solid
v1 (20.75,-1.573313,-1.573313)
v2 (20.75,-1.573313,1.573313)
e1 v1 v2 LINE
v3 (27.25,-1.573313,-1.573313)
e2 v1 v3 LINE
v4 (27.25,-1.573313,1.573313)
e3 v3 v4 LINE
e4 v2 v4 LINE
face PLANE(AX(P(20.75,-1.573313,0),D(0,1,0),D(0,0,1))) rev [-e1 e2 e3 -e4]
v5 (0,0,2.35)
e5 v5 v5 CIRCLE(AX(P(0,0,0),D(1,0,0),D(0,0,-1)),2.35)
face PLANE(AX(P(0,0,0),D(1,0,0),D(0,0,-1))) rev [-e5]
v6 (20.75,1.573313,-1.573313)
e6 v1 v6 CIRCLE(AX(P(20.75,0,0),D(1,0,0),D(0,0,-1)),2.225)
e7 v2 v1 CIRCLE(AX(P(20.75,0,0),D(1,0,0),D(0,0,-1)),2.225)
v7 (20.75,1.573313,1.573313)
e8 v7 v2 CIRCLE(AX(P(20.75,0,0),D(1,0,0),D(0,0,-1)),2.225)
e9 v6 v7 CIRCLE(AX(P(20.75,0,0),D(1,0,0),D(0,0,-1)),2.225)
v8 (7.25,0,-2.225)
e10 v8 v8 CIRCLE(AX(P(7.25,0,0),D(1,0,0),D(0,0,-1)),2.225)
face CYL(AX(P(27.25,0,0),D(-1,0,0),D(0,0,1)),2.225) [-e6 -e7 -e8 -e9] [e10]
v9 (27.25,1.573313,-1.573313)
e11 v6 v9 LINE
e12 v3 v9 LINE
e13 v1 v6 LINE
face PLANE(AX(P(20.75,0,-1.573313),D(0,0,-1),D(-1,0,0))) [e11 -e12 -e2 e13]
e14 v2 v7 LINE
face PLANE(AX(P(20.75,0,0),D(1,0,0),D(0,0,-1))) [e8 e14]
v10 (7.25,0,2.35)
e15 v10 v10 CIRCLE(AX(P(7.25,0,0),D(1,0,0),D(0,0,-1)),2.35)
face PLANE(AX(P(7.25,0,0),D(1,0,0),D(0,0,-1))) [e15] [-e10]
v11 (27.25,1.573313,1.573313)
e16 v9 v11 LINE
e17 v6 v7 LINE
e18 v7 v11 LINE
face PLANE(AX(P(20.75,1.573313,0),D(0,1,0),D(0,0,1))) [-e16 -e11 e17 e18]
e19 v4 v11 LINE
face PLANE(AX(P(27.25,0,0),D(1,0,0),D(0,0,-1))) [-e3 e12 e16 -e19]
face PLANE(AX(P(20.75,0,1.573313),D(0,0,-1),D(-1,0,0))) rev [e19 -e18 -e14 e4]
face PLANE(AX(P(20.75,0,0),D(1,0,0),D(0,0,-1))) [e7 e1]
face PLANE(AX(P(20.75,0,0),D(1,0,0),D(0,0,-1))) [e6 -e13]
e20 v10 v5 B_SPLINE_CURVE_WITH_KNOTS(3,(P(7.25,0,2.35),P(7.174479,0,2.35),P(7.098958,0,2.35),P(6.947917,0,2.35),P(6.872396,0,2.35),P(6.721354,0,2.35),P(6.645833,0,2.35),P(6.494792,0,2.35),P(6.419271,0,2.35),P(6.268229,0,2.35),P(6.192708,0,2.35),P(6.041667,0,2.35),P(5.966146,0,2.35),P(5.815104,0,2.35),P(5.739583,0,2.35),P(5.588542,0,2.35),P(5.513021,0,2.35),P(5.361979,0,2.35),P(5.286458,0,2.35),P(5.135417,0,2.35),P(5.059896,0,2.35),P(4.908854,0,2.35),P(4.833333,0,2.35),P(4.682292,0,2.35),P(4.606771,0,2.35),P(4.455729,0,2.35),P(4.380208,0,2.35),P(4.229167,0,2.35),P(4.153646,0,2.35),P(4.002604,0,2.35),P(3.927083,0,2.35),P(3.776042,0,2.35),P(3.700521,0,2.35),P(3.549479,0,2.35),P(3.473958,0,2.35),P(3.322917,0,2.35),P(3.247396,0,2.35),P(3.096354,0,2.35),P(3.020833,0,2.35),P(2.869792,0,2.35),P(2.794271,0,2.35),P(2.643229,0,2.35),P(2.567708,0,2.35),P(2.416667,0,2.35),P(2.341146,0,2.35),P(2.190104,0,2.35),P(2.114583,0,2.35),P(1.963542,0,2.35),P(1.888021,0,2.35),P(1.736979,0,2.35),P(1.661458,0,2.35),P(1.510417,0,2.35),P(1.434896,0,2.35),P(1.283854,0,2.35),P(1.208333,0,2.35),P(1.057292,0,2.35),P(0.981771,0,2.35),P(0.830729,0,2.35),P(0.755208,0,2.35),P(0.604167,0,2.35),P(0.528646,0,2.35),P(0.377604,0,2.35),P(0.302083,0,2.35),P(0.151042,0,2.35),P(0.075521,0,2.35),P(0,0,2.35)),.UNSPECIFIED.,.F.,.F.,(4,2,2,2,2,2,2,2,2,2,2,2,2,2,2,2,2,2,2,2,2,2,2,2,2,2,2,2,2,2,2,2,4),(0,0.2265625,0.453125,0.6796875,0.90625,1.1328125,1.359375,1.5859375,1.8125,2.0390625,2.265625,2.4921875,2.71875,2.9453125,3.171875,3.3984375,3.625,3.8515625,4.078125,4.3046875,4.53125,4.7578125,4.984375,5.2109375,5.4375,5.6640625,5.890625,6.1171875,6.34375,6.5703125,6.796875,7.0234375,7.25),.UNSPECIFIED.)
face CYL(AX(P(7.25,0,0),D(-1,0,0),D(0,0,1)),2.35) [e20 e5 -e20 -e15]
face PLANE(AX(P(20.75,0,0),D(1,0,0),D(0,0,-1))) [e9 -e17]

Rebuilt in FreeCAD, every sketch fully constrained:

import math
import FreeCAD as App
import Part
import Sketcher
Q = App.Units.Quantity

doc = App.newDocument("Part")
params = doc.addObject("Spreadsheet::Sheet", "Params")
for row, (alias, value) in enumerate([
    ("sketch1_diameter", "4.7 mm"),
    ("pad1_length", "7.25 mm"),
    ("sketch2_diameter", "4.45 mm"),
    ("pad2_length", "20 mm"),
    ("pocket1_length", "6.5 mm"),
], start=1):
    params.set(f"A{row}", alias)
    params.set(f"B{row}", "=" + value)
    params.setAlias(f"B{row}", alias)

body = doc.addObject("PartDesign::Body", "Body")

sketch1 = body.newObject("Sketcher::SketchObject", "Sketch")
sketch1.AttachmentSupport = (doc.getObject("YZ_Plane"), [""])
sketch1.MapMode = "FlatFace"
sketch1.addGeometry(Part.Circle(App.Vector(0, 0, 0), App.Vector(0, 0, 1), 2.35), False)
sketch1.addConstraint([
    Sketcher.Constraint("Coincident", 0, 3, -1, 1),
    Sketcher.Constraint("Diameter", 0, Q("4.7 mm")),
])
sketch1.setExpression("Constraints[1]", "Params.sketch1_diameter")
pad1 = body.newObject("PartDesign::Pad", "Pad")
pad1.Profile = sketch1
pad1.setExpression("Length", "Params.pad1_length")

sketch2 = body.newObject("Sketcher::SketchObject", "Sketch001")
sketch2.AttachmentSupport = (doc.getObject("YZ_Plane"), [""])
sketch2.MapMode = "FlatFace"
sketch2.AttachmentOffset = App.Placement(App.Vector(0, 0, 7.25), App.Rotation())
sketch2.addGeometry(Part.Circle(App.Vector(0, 0, 0), App.Vector(0, 0, 1), 2.225), False)
sketch2.addConstraint([
    Sketcher.Constraint("Coincident", 0, 3, -1, 1),
    Sketcher.Constraint("Diameter", 0, Q("4.45 mm")),
])
sketch2.setExpression("Constraints[1]", "Params.sketch2_diameter")
pad2 = body.newObject("PartDesign::Pad", "Pad001")
pad2.Profile = sketch2
pad2.setExpression("Length", "Params.pad2_length")

sketch3 = body.newObject("Sketcher::SketchObject", "Sketch002")
sketch3.AttachmentSupport = (doc.getObject("YZ_Plane"), [""])
sketch3.MapMode = "FlatFace"
sketch3.AttachmentOffset = App.Placement(App.Vector(0, 0, 20.75), App.Rotation())
sketch3.addGeometry([
    Part.ArcOfCircle(Part.Circle(App.Vector(0, 0, 0), App.Vector(0, 0, 1), 2.225), math.radians(45), math.radians(135)),
    Part.LineSegment(App.Vector(-1.573313, 1.573313, 0), App.Vector(1.573313, 1.573313, 0)),
    Part.ArcOfCircle(Part.Circle(App.Vector(0, 0, 0), App.Vector(0, 0, 1), 2.225), math.radians(135), math.radians(225)),
    Part.LineSegment(App.Vector(-1.573313, -1.573313, 0), App.Vector(-1.573313, 1.573313, 0)),
    Part.LineSegment(App.Vector(1.573313, 1.573313, 0), App.Vector(1.573313, -1.573313, 0)),
    Part.ArcOfCircle(Part.Circle(App.Vector(0, 0, 0), App.Vector(0, 0, 1), 2.225), math.radians(-45), math.radians(0)),
    Part.ArcOfCircle(Part.Circle(App.Vector(0, 0, 0), App.Vector(0, 0, 1), 2.225), math.radians(0), math.radians(45)),
    Part.LineSegment(App.Vector(1.573313, -1.573313, 0), App.Vector(-1.573313, -1.573313, 0)),
    Part.ArcOfCircle(Part.Circle(App.Vector(0, 0, 0), App.Vector(0, 0, 1), 2.225), math.radians(-135), math.radians(-45)),
], False)
sketch3.addConstraint([
    Sketcher.Constraint("Coincident", 0, 1, 1, 2),
    Sketcher.Constraint("Coincident", 1, 1, 0, 2),
    Sketcher.Constraint("Coincident", 2, 1, 3, 2),
    Sketcher.Constraint("Coincident", 3, 1, 2, 2),
    Sketcher.Constraint("Coincident", 4, 2, 5, 1),
    Sketcher.Constraint("Tangent", 5, 2, 6, 1),
    Sketcher.Constraint("Coincident", 6, 2, 4, 1),
    Sketcher.Constraint("Coincident", 7, 1, 8, 2),
    Sketcher.Constraint("Coincident", 8, 1, 7, 2),
    Sketcher.Constraint("Horizontal", 1),
    Sketcher.Constraint("Vertical", 3),
    Sketcher.Constraint("Vertical", 4),
    Sketcher.Constraint("Horizontal", 7),
    Sketcher.Constraint("Coincident", 0, 3, -1, 1),
    Sketcher.Constraint("Coincident", 2, 3, -1, 1),
    Sketcher.Constraint("Coincident", 5, 3, -1, 1),
    Sketcher.Constraint("Coincident", 8, 3, -1, 1),
    Sketcher.Constraint("Coincident", 2, 1, 1, 1),
    Sketcher.Constraint("Coincident", 6, 2, 0, 1),
    Sketcher.Constraint("Coincident", 7, 1, 4, 2),
    Sketcher.Constraint("Equal", 2, 5),
    Sketcher.Constraint("PointOnObject", 5, 2, -1),
    Sketcher.Constraint("Equal", 7, 3),
    Sketcher.Constraint("Radius", 0, Q("2.225 mm")),
])
pocket1 = body.newObject("PartDesign::Pocket", "Pocket")
pocket1.Profile = sketch3
pocket1.setExpression("Length", "Params.pocket1_length")
pocket1.Reversed = True

doc.recompute()
